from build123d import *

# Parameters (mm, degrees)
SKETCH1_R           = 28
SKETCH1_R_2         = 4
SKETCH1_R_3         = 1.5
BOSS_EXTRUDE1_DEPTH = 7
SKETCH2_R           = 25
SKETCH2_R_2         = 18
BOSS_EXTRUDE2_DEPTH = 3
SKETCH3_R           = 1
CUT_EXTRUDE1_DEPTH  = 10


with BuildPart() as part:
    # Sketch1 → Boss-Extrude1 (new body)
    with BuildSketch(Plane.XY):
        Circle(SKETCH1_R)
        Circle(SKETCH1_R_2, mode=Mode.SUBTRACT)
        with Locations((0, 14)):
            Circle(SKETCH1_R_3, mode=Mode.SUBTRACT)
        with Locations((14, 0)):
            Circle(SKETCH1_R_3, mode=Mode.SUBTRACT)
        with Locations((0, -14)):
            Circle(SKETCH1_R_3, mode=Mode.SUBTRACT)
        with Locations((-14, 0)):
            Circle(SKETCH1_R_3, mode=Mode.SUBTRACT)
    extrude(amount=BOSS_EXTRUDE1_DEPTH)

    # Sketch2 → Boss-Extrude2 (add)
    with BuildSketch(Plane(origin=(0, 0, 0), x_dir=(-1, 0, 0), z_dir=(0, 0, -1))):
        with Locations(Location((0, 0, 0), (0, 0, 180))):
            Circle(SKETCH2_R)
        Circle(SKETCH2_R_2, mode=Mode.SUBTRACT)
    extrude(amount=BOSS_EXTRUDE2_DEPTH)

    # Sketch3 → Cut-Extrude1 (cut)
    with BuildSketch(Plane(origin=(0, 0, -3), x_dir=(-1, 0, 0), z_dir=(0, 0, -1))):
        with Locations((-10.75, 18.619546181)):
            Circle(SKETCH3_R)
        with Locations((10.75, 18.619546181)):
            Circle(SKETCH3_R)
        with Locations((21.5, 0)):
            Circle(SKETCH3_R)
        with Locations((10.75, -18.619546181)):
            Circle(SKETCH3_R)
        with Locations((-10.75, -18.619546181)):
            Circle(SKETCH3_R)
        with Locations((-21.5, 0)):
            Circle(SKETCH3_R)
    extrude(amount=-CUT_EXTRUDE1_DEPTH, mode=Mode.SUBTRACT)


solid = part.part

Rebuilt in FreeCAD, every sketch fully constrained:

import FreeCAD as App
import Part
import Sketcher

V = App.Vector
Q = App.Units.Quantity

doc = App.newDocument("Part")
body = doc.addObject("PartDesign::Body", "Body")

sketch1 = body.newObject("Sketcher::SketchObject", "Sketch")
sketch1.AttachmentSupport = (doc.getObject("XY_Plane"), [""])
sketch1.MapMode = "FlatFace"
sketch1.addGeometry([
    Part.Circle(V(0, 0, 0), V(0, 0, 1), 28),
    Part.Circle(V(0, -14, 0), V(0, 0, 1), 1.5),
    Part.Circle(V(-14, 0, 0), V(0, 0, 1), 1.5),
    Part.Circle(V(0, 0, 0), V(0, 0, 1), 4),
    Part.Circle(V(14, 0, 0), V(0, 0, 1), 1.5),
    Part.Circle(V(0, 14, 0), V(0, 0, 1), 1.5),
], False)
sketch1.addConstraint([
    Sketcher.Constraint("Coincident", 0, 3, -1, 1),
    Sketcher.Constraint("Coincident", 3, 3, -1, 1),
    Sketcher.Constraint("Equal", 1, 2),
    Sketcher.Constraint("Equal", 2, 4),
    Sketcher.Constraint("Equal", 4, 5),
    Sketcher.Constraint("Symmetric", 2, 3, 4, 3, -1, 1),
    Sketcher.Constraint("Symmetric", 1, 3, 5, 3, -1, 1),
    Sketcher.Constraint("PointOnObject", 1, 3, -2),
    Sketcher.Constraint("PointOnObject", 2, 3, -1),
    Sketcher.Constraint("Diameter", 0, Q("56 mm")),
    Sketcher.Constraint("Diameter", 1, Q("3 mm")),
    Sketcher.Constraint("Diameter", 3, Q("8 mm")),
    Sketcher.Constraint("DistanceY", 1, 3, -1, 1, Q("14 mm")),
    Sketcher.Constraint("DistanceX", 2, 3, -1, 1, Q("14 mm")),
])
pad1 = body.newObject("PartDesign::Pad", "Pad")
pad1.Profile = sketch1
pad1.Length = 7

sketch2 = body.newObject("Sketcher::SketchObject", "Sketch001")
sketch2.AttachmentSupport = (doc.getObject("XY_Plane"), [""])
sketch2.MapMode = "FlatFace"
sketch2.addGeometry([
    Part.Circle(V(0, 0, 0), V(0, 0, 1), 25),
    Part.Circle(V(0, 0, 0), V(0, 0, 1), 18),
], False)
sketch2.addConstraint([
    Sketcher.Constraint("Coincident", 0, 3, -1, 1),
    Sketcher.Constraint("Coincident", 1, 3, -1, 1),
    Sketcher.Constraint("Diameter", 0, Q("50 mm")),
    Sketcher.Constraint("Diameter", 1, Q("36 mm")),
])
pad2 = body.newObject("PartDesign::Pad", "Pad001")
pad2.Profile = sketch2
pad2.Length = 3
pad2.Reversed = True

sketch3 = body.newObject("Sketcher::SketchObject", "Sketch002")
sketch3.AttachmentSupport = (doc.getObject("XY_Plane"), [""])
sketch3.MapMode = "FlatFace"
sketch3.AttachmentOffset = App.Placement(V(0, 0, -3), App.Rotation())
sketch3.addGeometry([
    Part.Circle(V(10.8, 18.6, 0), V(0, 0, 1), 1),
    Part.Circle(V(-10.8, 18.6, 0), V(0, 0, 1), 1),
    Part.Circle(V(-21.5, 0, 0), V(0, 0, 1), 1),
    Part.Circle(V(-10.8, -18.6, 0), V(0, 0, 1), 1),
    Part.Circle(V(10.8, -18.6, 0), V(0, 0, 1), 1),
    Part.Circle(V(21.5, 0, 0), V(0, 0, 1), 1),
], False)
sketch3.addConstraint([
    Sketcher.Constraint("Equal", 0, 1),
    Sketcher.Constraint("Equal", 1, 2),
    Sketcher.Constraint("Equal", 2, 3),
    Sketcher.Constraint("Equal", 3, 4),
    Sketcher.Constraint("Equal", 4, 5),
    Sketcher.Constraint("Symmetric", 0, 3, 3, 3, -1, 1),
    Sketcher.Constraint("Symmetric", 1, 3, 4, 3, -1, 1),
    Sketcher.Constraint("Symmetric", 2, 3, 5, 3, -1, 1),
    Sketcher.Constraint("Symmetric", 0, 3, 1, 3, -2),
    Sketcher.Constraint("PointOnObject", 2, 3, -1),
    Sketcher.Constraint("Diameter", 0, Q("2 mm")),
    Sketcher.Constraint("DistanceX", 2, 3, 5, 3, Q("43 mm")),
    Sketcher.Constraint("DistanceX", 1, 3, 0, 3, Q("21.5 mm")),
    Sketcher.Constraint("DistanceY", -1, 1, 0, 3, Q("18.619546 mm")),
])
pocket1 = body.newObject("PartDesign::Pocket", "Pocket")
pocket1.Profile = sketch3
pocket1.Length = 10
pocket1.Reversed = True

doc.recompute()
